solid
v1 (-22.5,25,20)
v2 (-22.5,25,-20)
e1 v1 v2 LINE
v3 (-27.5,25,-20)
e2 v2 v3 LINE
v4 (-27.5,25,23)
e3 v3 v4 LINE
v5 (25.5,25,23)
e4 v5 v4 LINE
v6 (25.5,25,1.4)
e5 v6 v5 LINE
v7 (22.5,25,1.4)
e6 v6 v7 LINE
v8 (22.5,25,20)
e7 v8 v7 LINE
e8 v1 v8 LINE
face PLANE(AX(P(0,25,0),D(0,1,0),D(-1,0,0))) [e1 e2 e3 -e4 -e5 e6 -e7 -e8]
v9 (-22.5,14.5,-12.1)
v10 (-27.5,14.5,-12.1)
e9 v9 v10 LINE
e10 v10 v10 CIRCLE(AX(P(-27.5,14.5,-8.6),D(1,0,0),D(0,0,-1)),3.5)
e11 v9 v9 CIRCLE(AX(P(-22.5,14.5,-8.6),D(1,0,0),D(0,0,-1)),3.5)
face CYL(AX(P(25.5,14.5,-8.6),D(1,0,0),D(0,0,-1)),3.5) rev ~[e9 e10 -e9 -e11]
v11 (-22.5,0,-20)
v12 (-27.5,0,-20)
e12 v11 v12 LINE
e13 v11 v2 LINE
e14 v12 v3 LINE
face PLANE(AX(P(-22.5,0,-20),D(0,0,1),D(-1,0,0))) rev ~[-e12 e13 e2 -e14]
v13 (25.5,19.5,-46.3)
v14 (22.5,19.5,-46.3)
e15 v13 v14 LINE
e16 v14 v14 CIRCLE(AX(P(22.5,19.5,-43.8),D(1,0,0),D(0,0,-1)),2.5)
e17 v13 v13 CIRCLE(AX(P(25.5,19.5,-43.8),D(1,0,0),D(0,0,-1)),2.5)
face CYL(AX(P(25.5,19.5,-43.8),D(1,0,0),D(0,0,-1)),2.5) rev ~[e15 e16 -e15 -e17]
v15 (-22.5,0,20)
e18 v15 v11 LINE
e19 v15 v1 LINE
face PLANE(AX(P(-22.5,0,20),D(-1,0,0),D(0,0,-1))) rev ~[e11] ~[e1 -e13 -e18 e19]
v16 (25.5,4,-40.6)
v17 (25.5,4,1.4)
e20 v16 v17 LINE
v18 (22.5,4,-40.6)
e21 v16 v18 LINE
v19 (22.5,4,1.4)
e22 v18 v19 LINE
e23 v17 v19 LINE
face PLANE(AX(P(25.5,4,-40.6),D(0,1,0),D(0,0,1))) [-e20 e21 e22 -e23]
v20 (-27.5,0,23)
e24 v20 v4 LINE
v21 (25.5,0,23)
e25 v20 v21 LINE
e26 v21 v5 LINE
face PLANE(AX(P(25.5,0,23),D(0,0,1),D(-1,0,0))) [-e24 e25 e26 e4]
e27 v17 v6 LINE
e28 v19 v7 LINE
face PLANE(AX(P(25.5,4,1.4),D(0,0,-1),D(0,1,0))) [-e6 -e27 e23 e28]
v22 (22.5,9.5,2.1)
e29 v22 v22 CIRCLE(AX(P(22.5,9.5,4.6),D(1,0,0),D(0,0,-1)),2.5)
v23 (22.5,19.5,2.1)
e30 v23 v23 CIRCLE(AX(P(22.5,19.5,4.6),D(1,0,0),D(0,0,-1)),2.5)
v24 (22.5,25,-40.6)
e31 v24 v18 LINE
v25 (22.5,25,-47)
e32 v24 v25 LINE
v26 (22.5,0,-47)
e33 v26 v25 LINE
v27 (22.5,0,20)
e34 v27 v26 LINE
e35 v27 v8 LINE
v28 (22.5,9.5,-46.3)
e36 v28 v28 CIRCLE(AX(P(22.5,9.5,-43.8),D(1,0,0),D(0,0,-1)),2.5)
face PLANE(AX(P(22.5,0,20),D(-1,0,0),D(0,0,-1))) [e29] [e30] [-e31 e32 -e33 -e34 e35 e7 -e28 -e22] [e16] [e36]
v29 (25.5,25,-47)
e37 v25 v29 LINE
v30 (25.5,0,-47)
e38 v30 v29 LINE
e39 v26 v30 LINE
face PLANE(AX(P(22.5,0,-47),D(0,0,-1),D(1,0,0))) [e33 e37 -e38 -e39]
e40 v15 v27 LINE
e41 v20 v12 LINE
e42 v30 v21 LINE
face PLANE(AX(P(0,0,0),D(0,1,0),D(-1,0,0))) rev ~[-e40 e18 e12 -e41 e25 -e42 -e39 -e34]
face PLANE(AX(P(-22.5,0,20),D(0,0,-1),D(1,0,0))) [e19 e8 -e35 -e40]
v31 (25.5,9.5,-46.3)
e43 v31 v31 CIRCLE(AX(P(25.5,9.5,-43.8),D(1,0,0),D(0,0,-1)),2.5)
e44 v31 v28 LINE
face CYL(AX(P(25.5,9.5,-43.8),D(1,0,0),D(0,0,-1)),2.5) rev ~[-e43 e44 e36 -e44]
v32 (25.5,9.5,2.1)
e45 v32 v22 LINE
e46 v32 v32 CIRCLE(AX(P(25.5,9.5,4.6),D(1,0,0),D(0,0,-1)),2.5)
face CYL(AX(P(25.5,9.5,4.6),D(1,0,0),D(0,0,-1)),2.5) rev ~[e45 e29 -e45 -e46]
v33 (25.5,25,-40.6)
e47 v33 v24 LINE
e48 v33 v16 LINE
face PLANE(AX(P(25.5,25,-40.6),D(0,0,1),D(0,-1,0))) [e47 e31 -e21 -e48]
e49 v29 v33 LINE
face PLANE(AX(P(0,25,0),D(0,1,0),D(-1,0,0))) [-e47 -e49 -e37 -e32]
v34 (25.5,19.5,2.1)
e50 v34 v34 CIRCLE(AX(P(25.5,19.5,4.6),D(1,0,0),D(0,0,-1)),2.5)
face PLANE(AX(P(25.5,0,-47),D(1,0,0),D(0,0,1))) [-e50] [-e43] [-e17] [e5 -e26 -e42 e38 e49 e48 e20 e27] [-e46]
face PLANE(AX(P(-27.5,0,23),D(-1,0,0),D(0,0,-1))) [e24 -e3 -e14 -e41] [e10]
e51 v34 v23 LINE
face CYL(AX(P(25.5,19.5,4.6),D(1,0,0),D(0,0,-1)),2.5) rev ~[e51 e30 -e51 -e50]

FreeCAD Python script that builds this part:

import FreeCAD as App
import Part
import Sketcher


def add_polygon(sketch, points):
    """Adds a closed chain of lines whose ends are joined by coincident constraints."""
    first, n = sketch.GeometryCount, len(points)
    for a, b in zip(points, points[1:] + points[:1]):
        sketch.addGeometry(Part.LineSegment(App.Vector(*a, 0), App.Vector(*b, 0)), False)
    for i in range(n):
        sketch.addConstraint(Sketcher.Constraint("Coincident", first + i, 2, first + (i + 1) % n, 1))

doc = App.newDocument("Part")
body = doc.addObject("PartDesign::Body", "Body")

sketch1 = doc.addObject("Sketcher::SketchObject", "Sketch")
body.addObject(sketch1)
sketch1.AttachmentSupport = (doc.XZ_Plane, [""])
sketch1.MapMode = "FlatFace"
add_polygon(sketch1, [(25.5, 23), (25.5, -47), (22.5, -47), (22.5, 20), (-22.5, 20), (-22.5, -20), (-27.5, -20), (-27.5, 23)])
sketch1.addConstraint([
    Sketcher.Constraint("Vertical", 0),
    Sketcher.Constraint("Horizontal", 1),
    Sketcher.Constraint("Vertical", 2),
    Sketcher.Constraint("Horizontal", 3),
    Sketcher.Constraint("Vertical", 4),
    Sketcher.Constraint("Horizontal", 5),
    Sketcher.Constraint("Vertical", 6),
    Sketcher.Constraint("Horizontal", 7),
    Sketcher.Constraint("Symmetric", 2, 2, 4, 2, -1, 1),
    Sketcher.Constraint("DistanceX", 1, 2, 1, 1, 3.0),
    Sketcher.Constraint("DistanceX", 3, 2, 3, 1, 45.0),
    Sketcher.Constraint("DistanceX", 5, 2, 5, 1, 5.0),
    Sketcher.Constraint("DistanceY", 0, 2, 0, 1, 70.0),
    Sketcher.Constraint("DistanceY", 4, 2, 4, 1, 40.0),
    Sketcher.Constraint("DistanceY", 3, 2, 6, 2, 3.0),
])
pad1 = doc.addObject("PartDesign::Pad", "Pad")
body.addObject(pad1)
pad1.Profile = sketch1
pad1.Length = 25
pad1.Reversed = True

sketch2 = doc.addObject("Sketcher::SketchObject", "Sketch001")
body.addObject(sketch2)
sketch2.AttachmentSupport = (doc.YZ_Plane, [""])
sketch2.MapMode = "FlatFace"
sketch2.AttachmentOffset = App.Placement(App.Vector(0, 0, 25.5), App.Rotation())
sketch2.addGeometry(Part.Circle(App.Vector(14.5, -8.6, 0), App.Vector(0, 0, 1), 3.5), False)
sketch2.addConstraint([
    Sketcher.Constraint("Diameter", 0, 7.0),
    Sketcher.Constraint("DistanceX", -1, 1, 0, 3, 14.5),
    Sketcher.Constraint("DistanceY", 0, 3, -1, 1, 8.6),
])
pocket1 = doc.addObject("PartDesign::Pocket", "Pocket")
body.addObject(pocket1)
pocket1.Profile = sketch2
pocket1.Type = "ThroughAll"

sketch3 = doc.addObject("Sketcher::SketchObject", "Sketch002")
body.addObject(sketch3)
sketch3.AttachmentSupport = (doc.YZ_Plane, [""])
sketch3.MapMode = "FlatFace"
sketch3.AttachmentOffset = App.Placement(App.Vector(0, 0, 25.5), App.Rotation())
add_polygon(sketch3, [(4, 1.4), (4, -40.6), (25, -40.6), (25, 1.4)])
sketch3.addGeometry(Part.Circle(App.Vector(19.5, 4.6, 0), App.Vector(0, 0, 1), 2.5), False)
sketch3.addGeometry(Part.Circle(App.Vector(19.5, -43.8, 0), App.Vector(0, 0, 1), 2.5), False)
sketch3.addGeometry(Part.Circle(App.Vector(9.5, 4.6, 0), App.Vector(0, 0, 1), 2.5), False)
sketch3.addGeometry(Part.Circle(App.Vector(9.5, -43.8, 0), App.Vector(0, 0, 1), 2.5), False)
sketch3.addConstraint([
    Sketcher.Constraint("Vertical", 0),
    Sketcher.Constraint("Horizontal", 1),
    Sketcher.Constraint("Vertical", 2),
    Sketcher.Constraint("Horizontal", 3),
    Sketcher.Constraint("Equal", 4, 5),
    Sketcher.Constraint("Equal", 5, 6),
    Sketcher.Constraint("Equal", 6, 7),
    Sketcher.Constraint("Horizontal", 4, 3, 6, 3),
    Sketcher.Constraint("Horizontal", 5, 3, 7, 3),
    Sketcher.Constraint("Vertical", 4, 3, 5, 3),
    Sketcher.Constraint("Vertical", 6, 3, 7, 3),
    Sketcher.Constraint("Diameter", 4, 5.0),
    Sketcher.Constraint("DistanceX", 1, 1, 1, 2, 21.0),
    Sketcher.Constraint("DistanceY", 0, 2, 0, 1, 42.0),
    Sketcher.Constraint("DistanceY", 7, 3, 0, 2, 3.2),
    Sketcher.Constraint("DistanceY", 2, 2, 4, 3, 3.2),
    Sketcher.Constraint("DistanceX", -1, 1, 0, 2, 4.0),
    Sketcher.Constraint("DistanceX", 6, 3, 4, 3, 10.0),
    Sketcher.Constraint("DistanceX", -1, 1, 4, 3, 19.5),
    Sketcher.Constraint("DistanceY", -1, 1, 4, 3, 4.6),
])
pocket2 = doc.addObject("PartDesign::Pocket", "Pocket001")
body.addObject(pocket2)
pocket2.Profile = sketch3
pocket2.Length = 3

doc.recompute()
